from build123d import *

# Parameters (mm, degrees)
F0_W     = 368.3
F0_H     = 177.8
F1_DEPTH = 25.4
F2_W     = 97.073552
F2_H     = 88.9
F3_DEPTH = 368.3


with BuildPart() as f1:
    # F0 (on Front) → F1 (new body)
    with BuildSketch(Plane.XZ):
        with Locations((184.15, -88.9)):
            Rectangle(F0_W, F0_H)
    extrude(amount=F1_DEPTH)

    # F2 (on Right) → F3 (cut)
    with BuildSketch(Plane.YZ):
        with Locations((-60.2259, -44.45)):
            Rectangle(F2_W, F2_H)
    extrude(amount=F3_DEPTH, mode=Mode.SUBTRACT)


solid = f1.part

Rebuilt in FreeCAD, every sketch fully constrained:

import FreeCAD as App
import Part
import Sketcher
Q = App.Units.Quantity


def add_polygon(sketch, points):
    """Adds a closed chain of lines whose ends are joined by coincident constraints."""
    first, n = sketch.GeometryCount, len(points)
    for a, b in zip(points, points[1:] + points[:1]):
        sketch.addGeometry(Part.LineSegment(App.Vector(*a, 0), App.Vector(*b, 0)), False)
    for i in range(n):
        sketch.addConstraint(Sketcher.Constraint("Coincident", first + i, 2, first + (i + 1) % n, 1))

doc = App.newDocument("Part")
body = doc.addObject("PartDesign::Body", "Body")

# Sketch on XZ plane
sketch1 = doc.addObject("Sketcher::SketchObject", "Sketch")
body.addObject(sketch1)
sketch1.AttachmentSupport = (doc.XZ_Plane, [""])
sketch1.MapMode = "FlatFace"
add_polygon(sketch1, [(0, 0), (0, -178), (368, -178), (368, 0)])  # lines 0-3
sketch1.addConstraint(Sketcher.Constraint("Vertical", 0))
sketch1.addConstraint(Sketcher.Constraint("Horizontal", 1))
sketch1.addConstraint(Sketcher.Constraint("Vertical", 2))
sketch1.addConstraint(Sketcher.Constraint("Horizontal", 3))
sketch1.addConstraint(Sketcher.Constraint("Coincident", 3, 2, -1, 1))
sketch1.addConstraint(Sketcher.Constraint("DistanceY", 0, 2, 0, 1, Q("7 in")))
sketch1.addConstraint(Sketcher.Constraint("DistanceX", 1, 1, 1, 2, Q("14.5 in")))
pad1 = doc.addObject("PartDesign::Pad", "Pad")
body.addObject(pad1)
pad1.Profile = sketch1
pad1.Length = Q("1 in")

# Sketch on YZ plane
sketch2 = doc.addObject("Sketcher::SketchObject", "Sketch001")
body.addObject(sketch2)
sketch2.AttachmentSupport = (doc.YZ_Plane, [""])
sketch2.MapMode = "FlatFace"
add_polygon(sketch2, [(-109, 0), (-109, -89), (-12, -89), (-12, 0)])  # lines 0-3
sketch2.addConstraint(Sketcher.Constraint("Vertical", 0))
sketch2.addConstraint(Sketcher.Constraint("Horizontal", 1))
sketch2.addConstraint(Sketcher.Constraint("Vertical", 2))
sketch2.addConstraint(Sketcher.Constraint("Horizontal", 3))
sketch2.addConstraint(Sketcher.Constraint("PointOnObject", 2, 2, -1))
sketch2.addConstraint(Sketcher.Constraint("DistanceY", 0, 2, 0, 1, Q("3.5 in")))
sketch2.addConstraint(Sketcher.Constraint("DistanceX", 1, 1, 1, 2, 97.073552))
sketch2.addConstraint(Sketcher.Constraint("DistanceX", 0, 2, -1, 1, 108.762676))
pocket1 = doc.addObject("PartDesign::Pocket", "Pocket")
body.addObject(pocket1)
pocket1.Profile = sketch2
pocket1.Length = Q("14.5 in")
pocket1.Reversed = True

doc.recompute()
